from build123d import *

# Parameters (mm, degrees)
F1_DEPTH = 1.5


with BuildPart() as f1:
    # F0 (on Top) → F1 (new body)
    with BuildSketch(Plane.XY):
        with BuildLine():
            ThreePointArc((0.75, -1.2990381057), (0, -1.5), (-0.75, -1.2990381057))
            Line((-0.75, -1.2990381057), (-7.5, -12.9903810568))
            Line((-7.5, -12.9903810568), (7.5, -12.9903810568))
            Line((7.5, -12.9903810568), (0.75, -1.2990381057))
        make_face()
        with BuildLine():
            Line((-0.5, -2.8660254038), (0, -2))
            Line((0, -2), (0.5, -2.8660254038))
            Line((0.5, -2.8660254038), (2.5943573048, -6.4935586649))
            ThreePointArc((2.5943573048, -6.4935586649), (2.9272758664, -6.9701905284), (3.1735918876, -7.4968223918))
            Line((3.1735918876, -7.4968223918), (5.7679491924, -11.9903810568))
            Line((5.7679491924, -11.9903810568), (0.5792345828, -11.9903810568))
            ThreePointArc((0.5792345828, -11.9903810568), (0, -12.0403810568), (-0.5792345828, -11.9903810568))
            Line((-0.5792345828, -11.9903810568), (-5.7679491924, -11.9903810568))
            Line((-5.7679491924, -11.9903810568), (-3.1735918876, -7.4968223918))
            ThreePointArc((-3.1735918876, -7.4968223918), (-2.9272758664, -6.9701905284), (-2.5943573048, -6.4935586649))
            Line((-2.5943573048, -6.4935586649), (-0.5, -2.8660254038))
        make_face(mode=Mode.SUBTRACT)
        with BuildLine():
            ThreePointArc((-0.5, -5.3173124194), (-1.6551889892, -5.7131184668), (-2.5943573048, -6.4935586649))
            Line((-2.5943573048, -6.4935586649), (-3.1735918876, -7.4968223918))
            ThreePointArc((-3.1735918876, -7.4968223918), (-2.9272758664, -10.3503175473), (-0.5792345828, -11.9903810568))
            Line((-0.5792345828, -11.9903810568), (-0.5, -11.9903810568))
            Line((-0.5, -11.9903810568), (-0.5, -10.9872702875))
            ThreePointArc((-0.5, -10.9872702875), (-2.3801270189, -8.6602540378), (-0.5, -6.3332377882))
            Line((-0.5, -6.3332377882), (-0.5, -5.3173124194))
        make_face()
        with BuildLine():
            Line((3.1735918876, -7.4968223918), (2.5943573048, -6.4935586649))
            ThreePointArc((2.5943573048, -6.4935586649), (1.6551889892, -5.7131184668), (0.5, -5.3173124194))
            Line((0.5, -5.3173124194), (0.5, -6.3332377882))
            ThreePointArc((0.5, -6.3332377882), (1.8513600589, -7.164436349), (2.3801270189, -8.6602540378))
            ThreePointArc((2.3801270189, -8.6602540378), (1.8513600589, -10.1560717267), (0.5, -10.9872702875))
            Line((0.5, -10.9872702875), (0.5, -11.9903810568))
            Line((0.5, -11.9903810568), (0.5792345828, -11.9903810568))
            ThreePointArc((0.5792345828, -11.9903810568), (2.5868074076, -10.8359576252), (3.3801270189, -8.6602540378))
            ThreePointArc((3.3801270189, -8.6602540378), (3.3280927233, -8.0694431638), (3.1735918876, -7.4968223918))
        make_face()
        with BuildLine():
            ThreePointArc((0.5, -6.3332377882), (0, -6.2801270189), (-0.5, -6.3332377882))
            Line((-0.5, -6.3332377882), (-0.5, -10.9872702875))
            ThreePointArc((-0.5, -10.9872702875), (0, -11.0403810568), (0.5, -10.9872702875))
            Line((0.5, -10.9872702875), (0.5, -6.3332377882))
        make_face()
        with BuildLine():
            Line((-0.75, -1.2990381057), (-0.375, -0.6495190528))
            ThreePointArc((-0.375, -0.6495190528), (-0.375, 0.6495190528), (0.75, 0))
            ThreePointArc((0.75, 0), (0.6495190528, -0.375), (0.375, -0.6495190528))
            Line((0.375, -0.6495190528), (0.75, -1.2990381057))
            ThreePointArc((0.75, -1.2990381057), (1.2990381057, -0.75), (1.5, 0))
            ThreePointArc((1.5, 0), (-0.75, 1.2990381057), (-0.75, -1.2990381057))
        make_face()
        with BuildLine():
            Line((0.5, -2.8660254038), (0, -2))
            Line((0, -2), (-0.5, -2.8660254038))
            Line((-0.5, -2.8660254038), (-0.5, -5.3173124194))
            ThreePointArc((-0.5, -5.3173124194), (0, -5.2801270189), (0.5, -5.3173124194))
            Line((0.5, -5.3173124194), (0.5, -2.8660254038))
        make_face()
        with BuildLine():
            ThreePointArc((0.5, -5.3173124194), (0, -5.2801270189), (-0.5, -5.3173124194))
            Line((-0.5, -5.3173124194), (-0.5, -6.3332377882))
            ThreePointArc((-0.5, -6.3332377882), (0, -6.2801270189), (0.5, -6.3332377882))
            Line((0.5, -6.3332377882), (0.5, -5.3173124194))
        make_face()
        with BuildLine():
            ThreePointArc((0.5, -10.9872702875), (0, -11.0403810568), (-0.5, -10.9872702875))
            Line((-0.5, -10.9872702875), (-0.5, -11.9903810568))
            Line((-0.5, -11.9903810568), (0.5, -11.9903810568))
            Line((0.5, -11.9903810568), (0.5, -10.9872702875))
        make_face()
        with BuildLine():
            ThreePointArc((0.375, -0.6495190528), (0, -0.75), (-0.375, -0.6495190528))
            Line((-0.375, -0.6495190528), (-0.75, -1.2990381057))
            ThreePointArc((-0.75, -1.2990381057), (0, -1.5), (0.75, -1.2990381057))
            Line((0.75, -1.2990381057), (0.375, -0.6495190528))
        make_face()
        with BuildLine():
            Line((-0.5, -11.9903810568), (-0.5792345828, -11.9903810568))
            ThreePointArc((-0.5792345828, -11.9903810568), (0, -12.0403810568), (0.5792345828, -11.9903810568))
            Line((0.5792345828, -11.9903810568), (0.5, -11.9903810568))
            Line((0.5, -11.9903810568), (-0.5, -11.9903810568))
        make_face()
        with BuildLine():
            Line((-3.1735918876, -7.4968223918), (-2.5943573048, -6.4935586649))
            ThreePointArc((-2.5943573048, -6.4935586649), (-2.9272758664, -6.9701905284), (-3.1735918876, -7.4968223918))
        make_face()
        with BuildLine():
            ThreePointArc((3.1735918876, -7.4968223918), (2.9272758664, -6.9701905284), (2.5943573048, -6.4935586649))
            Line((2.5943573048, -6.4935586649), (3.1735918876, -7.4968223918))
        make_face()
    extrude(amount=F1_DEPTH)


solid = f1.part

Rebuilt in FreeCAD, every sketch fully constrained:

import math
import FreeCAD as App
import Part
import Sketcher

V = App.Vector
Q = App.Units.Quantity

doc = App.newDocument("Part")
body = doc.addObject("PartDesign::Body", "Body")

# Sketch on XY plane
sketch1 = body.newObject("Sketcher::SketchObject", "Sketch")
sketch1.AttachmentSupport = (doc.getObject("XY_Plane"), [""])
sketch1.MapMode = "FlatFace"
sketch1.addGeometry(Part.LineSegment(V(7.5, -12.990381, 0), V(0.75, -1.299038, 0)), False)
sketch1.addGeometry(Part.ArcOfCircle(Part.Circle(V(0, 0, 0), V(0, 0, 1), 1.5), math.radians(-60), math.radians(0)), False)
sketch1.addGeometry(Part.ArcOfCircle(Part.Circle(V(0, 0, 0), V(0, 0, 1), 1.5), math.radians(0), math.radians(240)), False)
sketch1.addGeometry(Part.LineSegment(V(-0.75, -1.299038, 0), V(-7.5, -12.990381, 0)), False)
sketch1.addGeometry(Part.LineSegment(V(-7.5, -12.990381, 0), V(7.5, -12.990381, 0)), False)
sketch1.addGeometry(Part.LineSegment(V(-5.767949, -11.990381, 0), V(-3.173592, -7.496822, 0)), False)
sketch1.addGeometry(Part.ArcOfCircle(Part.Circle(V(0, -8.660254, 0), V(0, 0, 1), 3.380127), math.radians(159.867177), math.radians(260.132823)), False)
sketch1.addGeometry(Part.LineSegment(V(-0.579235, -11.990381, 0), V(-5.767949, -11.990381, 0)), False)
sketch1.addGeometry(Part.LineSegment(V(-0.5, -6.333238, 0), V(-0.5, -10.98727, 0)), False)
sketch1.addGeometry(Part.ArcOfCircle(Part.Circle(V(0, -8.660254, 0), V(0, 0, 1), 2.380127), math.radians(102.12662), math.radians(257.87338)), False)
sketch1.addGeometry(Part.ArcOfCircle(Part.Circle(V(0, -8.660254, 0), V(0, 0, 1), 3.380127), math.radians(0), math.radians(20.132823)), False)
sketch1.addGeometry(Part.LineSegment(V(3.173592, -7.496822, 0), V(5.767949, -11.990381, 0)), False)
sketch1.addGeometry(Part.LineSegment(V(5.767949, -11.990381, 0), V(0.579235, -11.990381, 0)), False)
sketch1.addGeometry(Part.ArcOfCircle(Part.Circle(V(0, -8.660254, 0), V(0, 0, 1), 3.380127), math.radians(-80.132823), math.radians(0)), False)
sketch1.addGeometry(Part.ArcOfCircle(Part.Circle(V(0, -8.660254, 0), V(0, 0, 1), 2.380127), math.radians(-77.87338), math.radians(0)), False)
sketch1.addGeometry(Part.LineSegment(V(0.5, -10.98727, 0), V(0.5, -6.333238, 0)), False)
sketch1.addGeometry(Part.ArcOfCircle(Part.Circle(V(0, -8.660254, 0), V(0, 0, 1), 2.380127), math.radians(0), math.radians(77.87338)), False)
sketch1.addGeometry(Part.ArcOfCircle(Part.Circle(V(0, -8.660254, 0), V(0, 0, 1), 3.380127), math.radians(98.506606), math.radians(140.132823)), False)
sketch1.addGeometry(Part.LineSegment(V(-2.594357, -6.493559, 0), V(-0.5, -2.866025, 0)), False)
sketch1.addGeometry(Part.LineSegment(V(-0.5, -2.866025, 0), V(-0.5, -5.317312, 0)), False)
sketch1.addGeometry(Part.LineSegment(V(0.5, -2.866025, 0), V(2.594357, -6.493559, 0)), False)
sketch1.addGeometry(Part.ArcOfCircle(Part.Circle(V(0, -8.660254, 0), V(0, 0, 1), 3.380127), math.radians(39.867177), math.radians(81.493394)), False)
sketch1.addGeometry(Part.LineSegment(V(0.5, -5.317312, 0), V(0.5, -2.866025, 0)), False)
sketch1.addGeometry(Part.ArcOfCircle(Part.Circle(V(0, 0, 0), V(0, 0, 1), 0.75), math.radians(-120), math.radians(-60)), False)
sketch1.addGeometry(Part.ArcOfCircle(Part.Circle(V(0, 0, 0), V(0, 0, 1), 0.75), math.radians(0), math.radians(240)), False)
sketch1.addGeometry(Part.ArcOfCircle(Part.Circle(V(0, 0, 0), V(0, 0, 1), 0.75), math.radians(-60), math.radians(0)), False)
sketch1.addConstraint(Sketcher.Constraint("Coincident", 0, 2, 1, 1))
sketch1.addConstraint(Sketcher.Constraint("Tangent", 1, 2, 2, 1))
sketch1.addConstraint(Sketcher.Constraint("Coincident", 2, 2, 3, 1))
sketch1.addConstraint(Sketcher.Constraint("Coincident", 3, 2, 4, 1))
sketch1.addConstraint(Sketcher.Constraint("Coincident", 4, 2, 0, 1))
sketch1.addConstraint(Sketcher.Constraint("Coincident", 5, 2, 6, 1))
sketch1.addConstraint(Sketcher.Constraint("Coincident", 6, 2, 7, 1))
sketch1.addConstraint(Sketcher.Constraint("Coincident", 7, 2, 5, 1))
sketch1.addConstraint(Sketcher.Constraint("Coincident", 8, 1, 9, 1))
sketch1.addConstraint(Sketcher.Constraint("Coincident", 9, 2, 8, 2))
sketch1.addConstraint(Sketcher.Constraint("Coincident", 10, 2, 11, 1))
sketch1.addConstraint(Sketcher.Constraint("Coincident", 11, 2, 12, 1))
sketch1.addConstraint(Sketcher.Constraint("Coincident", 12, 2, 13, 1))
sketch1.addConstraint(Sketcher.Constraint("Tangent", 13, 2, 10, 1))
sketch1.addConstraint(Sketcher.Constraint("Coincident", 14, 1, 15, 1))
sketch1.addConstraint(Sketcher.Constraint("Coincident", 15, 2, 16, 2))
sketch1.addConstraint(Sketcher.Constraint("Tangent", 16, 1, 14, 2))
sketch1.addConstraint(Sketcher.Constraint("Coincident", 17, 2, 18, 1))
sketch1.addConstraint(Sketcher.Constraint("Coincident", 18, 2, 19, 1))
sketch1.addConstraint(Sketcher.Constraint("Coincident", 19, 2, 17, 1))
sketch1.addConstraint(Sketcher.Constraint("Coincident", 20, 2, 21, 1))
sketch1.addConstraint(Sketcher.Constraint("Coincident", 21, 2, 22, 1))
sketch1.addConstraint(Sketcher.Constraint("Coincident", 22, 2, 20, 1))
sketch1.addConstraint(Sketcher.Constraint("Tangent", 23, 1, 24, 2))
sketch1.addConstraint(Sketcher.Constraint("Tangent", 24, 1, 25, 2))
sketch1.addConstraint(Sketcher.Constraint("Tangent", 25, 1, 23, 2))
sketch1.addConstraint(Sketcher.Constraint("Horizontal", 4))
sketch1.addConstraint(Sketcher.Constraint("Horizontal", 7))
sketch1.addConstraint(Sketcher.Constraint("Vertical", 8))
sketch1.addConstraint(Sketcher.Constraint("Horizontal", 12))
sketch1.addConstraint(Sketcher.Constraint("Vertical", 15))
sketch1.addConstraint(Sketcher.Constraint("Vertical", 19))
sketch1.addConstraint(Sketcher.Constraint("Vertical", 22))
sketch1.addConstraint(Sketcher.Constraint("Coincident", 1, 3, -1, 1))
sketch1.addConstraint(Sketcher.Constraint("Coincident", 23, 3, -1, 1))
sketch1.addConstraint(Sketcher.Constraint("Coincident", 9, 3, 6, 3))
sketch1.addConstraint(Sketcher.Constraint("Coincident", 10, 3, 6, 3))
sketch1.addConstraint(Sketcher.Constraint("Coincident", 14, 3, 6, 3))
sketch1.addConstraint(Sketcher.Constraint("Coincident", 17, 3, 6, 3))
sketch1.addConstraint(Sketcher.Constraint("Coincident", 21, 3, 6, 3))
sketch1.addConstraint(Sketcher.Constraint("Equal", 1, 2))
sketch1.addConstraint(Sketcher.Constraint("Equal", 6, 10))
sketch1.addConstraint(Sketcher.Constraint("Equal", 10, 13))
sketch1.addConstraint(Sketcher.Constraint("Equal", 9, 14))
sketch1.addConstraint(Sketcher.Constraint("Equal", 14, 16))
sketch1.addConstraint(Sketcher.Constraint("Equal", 13, 17))
sketch1.addConstraint(Sketcher.Constraint("Equal", 17, 21))
sketch1.addConstraint(Sketcher.Constraint("Symmetric", 5, 2, 10, 2, -2))
sketch1.addConstraint(Sketcher.Constraint("Symmetric", 7, 2, 11, 2, -2))
sketch1.addConstraint(Sketcher.Constraint("Symmetric", 18, 2, 22, 2, -2))
sketch1.addConstraint(Sketcher.Constraint("PointOnObject", 1, 2, -1))
sketch1.addConstraint(Sketcher.Constraint("PointOnObject", 24, 1, -1))
sketch1.addConstraint(Sketcher.Constraint("Parallel", 3, 5))
sketch1.addConstraint(Sketcher.Constraint("Parallel", 0, 11))
sketch1.addConstraint(Sketcher.Constraint("Parallel", 5, 18))
sketch1.addConstraint(Sketcher.Constraint("Parallel", 11, 20))
sketch1.addConstraint(Sketcher.Constraint("Horizontal", 0, 2, 2, 2))
sketch1.addConstraint(Sketcher.Constraint("Horizontal", 21, 3, 13, 2))
sketch1.addConstraint(Sketcher.Constraint("Horizontal", 9, 2, 14, 1))
sketch1.addConstraint(Sketcher.Constraint("Horizontal", 13, 2, 16, 1))
sketch1.addConstraint(Sketcher.Constraint("Horizontal", 23, 1, 25, 1))
sketch1.addConstraint(Sketcher.Constraint("Vertical", 9, 2, 18, 2))
sketch1.addConstraint(Sketcher.Constraint("Vertical", 0, 2, 24, 1))
sketch1.addConstraint(Sketcher.Constraint("Radius", 1, 1.5))
sketch1.addConstraint(Sketcher.Constraint("DistanceX", 4, 1, 4, 2, 15.0))
sketch1.addConstraint(Sketcher.Constraint("Angle", 0, Q("120 deg")))
sketch1.addConstraint(Sketcher.Constraint("Radius", 23, 0.75))
sketch1.addConstraint(Sketcher.Constraint("DistanceY", 3, 2, 7, 2, 1.0))
sketch1.addConstraint(Sketcher.Constraint("DistanceX", 9, 2, 14, 1, 1.0))
sketch1.addConstraint(Sketcher.Constraint("DistanceX", 16, 1, 13, 2, 1.0))
sketch1.addConstraint(Sketcher.Constraint("DistanceX", 23, 1, 25, 1, 0.75))
sketch1.addConstraint(Sketcher.Constraint("Radius", 6, 3.380127))
sketch1.addConstraint(Sketcher.Constraint("DistanceX", 7, 2, 7, 1, 5.188715))
sketch1.addConstraint(Sketcher.Constraint("DistanceY", 19, 2, 19, 1, 2.451287))
sketch1.addConstraint(Sketcher.Constraint("DistanceX", 5, 2, -1, 1, 3.173592))
pad1 = body.newObject("PartDesign::Pad", "Pad")
pad1.Profile = sketch1
pad1.Length = 1.5

doc.recompute()
